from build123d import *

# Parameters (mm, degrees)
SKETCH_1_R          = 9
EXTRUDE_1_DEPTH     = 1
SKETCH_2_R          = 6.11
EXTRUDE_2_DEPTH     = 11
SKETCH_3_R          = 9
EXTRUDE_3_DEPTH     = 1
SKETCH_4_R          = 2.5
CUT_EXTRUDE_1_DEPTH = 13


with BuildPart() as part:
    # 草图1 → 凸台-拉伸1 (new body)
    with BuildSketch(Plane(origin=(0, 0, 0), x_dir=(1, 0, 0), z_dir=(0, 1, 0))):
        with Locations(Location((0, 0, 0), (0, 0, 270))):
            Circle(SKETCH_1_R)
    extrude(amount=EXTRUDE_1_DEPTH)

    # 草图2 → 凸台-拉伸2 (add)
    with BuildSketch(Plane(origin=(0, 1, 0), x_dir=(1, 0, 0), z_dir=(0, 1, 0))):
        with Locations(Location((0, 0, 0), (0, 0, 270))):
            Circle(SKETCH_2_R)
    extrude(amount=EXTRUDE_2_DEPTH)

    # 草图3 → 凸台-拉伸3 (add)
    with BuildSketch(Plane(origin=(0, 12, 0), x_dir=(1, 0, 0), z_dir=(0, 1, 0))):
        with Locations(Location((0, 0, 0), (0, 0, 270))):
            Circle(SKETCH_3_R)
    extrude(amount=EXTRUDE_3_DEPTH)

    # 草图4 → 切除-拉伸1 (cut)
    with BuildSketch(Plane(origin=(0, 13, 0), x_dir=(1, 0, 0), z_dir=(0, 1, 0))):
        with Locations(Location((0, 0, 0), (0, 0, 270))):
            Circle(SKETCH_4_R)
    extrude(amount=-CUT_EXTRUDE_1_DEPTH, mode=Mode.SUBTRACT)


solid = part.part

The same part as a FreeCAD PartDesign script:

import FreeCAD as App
import Part
import Sketcher

V = App.Vector

doc = App.newDocument("Part")
body = doc.addObject("PartDesign::Body", "Body")

sketch1 = body.newObject("Sketcher::SketchObject", "Sketch")
sketch1.AttachmentSupport = (doc.getObject("XZ_Plane"), [""])
sketch1.MapMode = "FlatFace"
sketch1.addGeometry(Part.Circle(V(0, 0, 0), V(0, 0, 1), 9), False)
sketch1.addConstraint([
    Sketcher.Constraint("Coincident", 0, 3, -1, 1),
    Sketcher.Constraint("Diameter", 0, 18.0),
])
pad1 = body.newObject("PartDesign::Pad", "Pad")
pad1.Profile = sketch1
pad1.Length = 1
pad1.Reversed = True

sketch2 = body.newObject("Sketcher::SketchObject", "Sketch001")
sketch2.AttachmentSupport = (doc.getObject("XZ_Plane"), [""])
sketch2.MapMode = "FlatFace"
sketch2.AttachmentOffset = App.Placement(V(0, 0, -1), App.Rotation())
sketch2.addGeometry(Part.Circle(V(0, 0, 0), V(0, 0, 1), 6), False)
sketch2.addConstraint([
    Sketcher.Constraint("Coincident", 0, 3, -1, 1),
    Sketcher.Constraint("Diameter", 0, 12.22),
])
pad2 = body.newObject("PartDesign::Pad", "Pad001")
pad2.Profile = sketch2
pad2.Length = 11
pad2.Reversed = True

sketch3 = body.newObject("Sketcher::SketchObject", "Sketch002")
sketch3.AttachmentSupport = (doc.getObject("XZ_Plane"), [""])
sketch3.MapMode = "FlatFace"
sketch3.AttachmentOffset = App.Placement(V(0, 0, -12), App.Rotation())
sketch3.addGeometry(Part.Circle(V(0, 0, 0), V(0, 0, 1), 9), False)
sketch3.addConstraint([
    Sketcher.Constraint("Coincident", 0, 3, -1, 1),
    Sketcher.Constraint("Diameter", 0, 18.0),
])
pad3 = body.newObject("PartDesign::Pad", "Pad002")
pad3.Profile = sketch3
pad3.Length = 1
pad3.Reversed = True

sketch4 = body.newObject("Sketcher::SketchObject", "Sketch003")
sketch4.AttachmentSupport = (doc.getObject("XZ_Plane"), [""])
sketch4.MapMode = "FlatFace"
sketch4.AttachmentOffset = App.Placement(V(0, 0, -13), App.Rotation())
sketch4.addGeometry(Part.Circle(V(0, 0, 0), V(0, 0, 1), 2.5), False)
sketch4.addConstraint([
    Sketcher.Constraint("Coincident", 0, 3, -1, 1),
    Sketcher.Constraint("Diameter", 0, 5.0),
])
pocket1 = body.newObject("PartDesign::Pocket", "Pocket")
pocket1.Profile = sketch4
pocket1.Length = 13
pocket1.Reversed = True

doc.recompute()
